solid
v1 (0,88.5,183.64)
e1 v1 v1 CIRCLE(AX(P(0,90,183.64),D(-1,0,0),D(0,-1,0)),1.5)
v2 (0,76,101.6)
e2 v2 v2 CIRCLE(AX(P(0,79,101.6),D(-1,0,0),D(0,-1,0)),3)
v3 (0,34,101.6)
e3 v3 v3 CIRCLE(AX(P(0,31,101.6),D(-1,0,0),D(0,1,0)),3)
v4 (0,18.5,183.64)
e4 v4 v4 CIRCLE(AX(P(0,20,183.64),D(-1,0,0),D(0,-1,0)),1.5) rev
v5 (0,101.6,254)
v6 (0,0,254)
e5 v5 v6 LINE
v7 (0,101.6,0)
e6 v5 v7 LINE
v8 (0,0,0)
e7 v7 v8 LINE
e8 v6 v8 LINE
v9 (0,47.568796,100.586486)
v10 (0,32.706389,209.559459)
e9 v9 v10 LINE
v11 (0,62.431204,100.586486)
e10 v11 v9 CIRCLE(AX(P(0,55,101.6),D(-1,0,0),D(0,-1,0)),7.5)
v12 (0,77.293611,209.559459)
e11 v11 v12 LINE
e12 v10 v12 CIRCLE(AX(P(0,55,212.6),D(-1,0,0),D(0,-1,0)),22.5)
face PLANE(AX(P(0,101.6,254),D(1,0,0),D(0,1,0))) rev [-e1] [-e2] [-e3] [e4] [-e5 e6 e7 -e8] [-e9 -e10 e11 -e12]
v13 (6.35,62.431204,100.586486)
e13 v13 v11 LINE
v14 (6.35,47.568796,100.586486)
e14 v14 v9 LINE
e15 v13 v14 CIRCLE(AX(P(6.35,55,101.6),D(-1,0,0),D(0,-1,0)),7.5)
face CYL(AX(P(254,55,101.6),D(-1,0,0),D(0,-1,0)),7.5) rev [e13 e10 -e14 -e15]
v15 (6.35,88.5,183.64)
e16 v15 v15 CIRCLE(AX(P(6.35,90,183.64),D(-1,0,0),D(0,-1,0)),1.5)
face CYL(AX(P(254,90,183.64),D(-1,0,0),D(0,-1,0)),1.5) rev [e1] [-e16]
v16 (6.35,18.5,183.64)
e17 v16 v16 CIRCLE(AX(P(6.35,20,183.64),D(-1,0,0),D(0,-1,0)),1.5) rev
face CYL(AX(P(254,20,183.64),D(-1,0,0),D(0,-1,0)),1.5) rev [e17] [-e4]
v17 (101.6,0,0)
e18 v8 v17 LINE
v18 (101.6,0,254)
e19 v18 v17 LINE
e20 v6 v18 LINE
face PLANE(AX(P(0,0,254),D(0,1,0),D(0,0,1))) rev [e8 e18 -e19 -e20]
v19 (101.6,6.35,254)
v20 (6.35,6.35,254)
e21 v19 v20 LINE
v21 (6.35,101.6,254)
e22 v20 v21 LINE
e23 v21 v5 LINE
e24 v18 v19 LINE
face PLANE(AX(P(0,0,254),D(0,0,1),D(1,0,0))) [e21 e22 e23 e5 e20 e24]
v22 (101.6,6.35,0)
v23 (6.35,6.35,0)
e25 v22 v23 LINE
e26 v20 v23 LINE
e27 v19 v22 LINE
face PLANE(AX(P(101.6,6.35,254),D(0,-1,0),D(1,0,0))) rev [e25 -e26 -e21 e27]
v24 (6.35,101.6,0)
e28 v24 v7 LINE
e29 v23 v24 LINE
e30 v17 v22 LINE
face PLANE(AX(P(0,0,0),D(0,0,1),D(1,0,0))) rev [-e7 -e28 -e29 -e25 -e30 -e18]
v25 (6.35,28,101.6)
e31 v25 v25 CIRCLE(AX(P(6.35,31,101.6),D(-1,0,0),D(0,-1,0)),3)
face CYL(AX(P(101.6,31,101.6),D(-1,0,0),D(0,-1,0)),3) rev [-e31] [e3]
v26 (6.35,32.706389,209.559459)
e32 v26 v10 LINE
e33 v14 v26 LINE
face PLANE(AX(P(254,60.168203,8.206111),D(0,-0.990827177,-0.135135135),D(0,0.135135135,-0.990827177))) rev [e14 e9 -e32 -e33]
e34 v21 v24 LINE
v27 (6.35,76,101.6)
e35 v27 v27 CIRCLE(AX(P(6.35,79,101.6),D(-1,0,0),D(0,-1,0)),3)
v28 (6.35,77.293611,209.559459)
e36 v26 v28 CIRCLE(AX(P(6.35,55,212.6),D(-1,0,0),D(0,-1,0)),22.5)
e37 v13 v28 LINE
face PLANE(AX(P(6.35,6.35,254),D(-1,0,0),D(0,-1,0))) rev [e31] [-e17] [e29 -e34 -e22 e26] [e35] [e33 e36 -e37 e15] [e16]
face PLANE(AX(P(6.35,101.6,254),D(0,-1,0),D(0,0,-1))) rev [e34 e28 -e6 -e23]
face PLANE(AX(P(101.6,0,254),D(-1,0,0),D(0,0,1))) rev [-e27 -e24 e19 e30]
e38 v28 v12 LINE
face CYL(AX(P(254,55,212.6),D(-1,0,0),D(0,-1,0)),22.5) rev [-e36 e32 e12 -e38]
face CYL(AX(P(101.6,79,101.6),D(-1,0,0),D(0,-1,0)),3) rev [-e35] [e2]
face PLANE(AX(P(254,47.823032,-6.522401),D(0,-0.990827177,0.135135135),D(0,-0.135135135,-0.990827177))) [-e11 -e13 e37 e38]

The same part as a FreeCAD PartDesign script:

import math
import FreeCAD as App
import Part
import Sketcher

V = App.Vector
Q = App.Units.Quantity


def add_polygon(sketch, points):
    """Adds a closed chain of lines whose ends are joined by coincident constraints."""
    first, n = sketch.GeometryCount, len(points)
    for a, b in zip(points, points[1:] + points[:1]):
        sketch.addGeometry(Part.LineSegment(App.Vector(*a, 0), App.Vector(*b, 0)), False)
    for i in range(n):
        sketch.addConstraint(Sketcher.Constraint("Coincident", first + i, 2, first + (i + 1) % n, 1))

doc = App.newDocument("Part")
body = doc.addObject("PartDesign::Body", "Body")

# Sketch on XY plane
sketch1 = doc.addObject("Sketcher::SketchObject", "Sketch")
body.addObject(sketch1)
sketch1.AttachmentSupport = (doc.XY_Plane, [""])
sketch1.MapMode = "FlatFace"
add_polygon(sketch1, [(0, 101.6), (0, 0), (101.6, 0), (101.6, 6.35), (6.35, 6.35), (6.35, 101.6)])  # lines 0-5
sketch1.addConstraint(Sketcher.Constraint("Vertical", 0))
sketch1.addConstraint(Sketcher.Constraint("Horizontal", 1))
sketch1.addConstraint(Sketcher.Constraint("Vertical", 2))
sketch1.addConstraint(Sketcher.Constraint("Horizontal", 3))
sketch1.addConstraint(Sketcher.Constraint("Vertical", 4))
sketch1.addConstraint(Sketcher.Constraint("Horizontal", 5))
sketch1.addConstraint(Sketcher.Constraint("Coincident", 0, 2, -1, 1))
sketch1.addConstraint(Sketcher.Constraint("Equal", 1, 0))
sketch1.addConstraint(Sketcher.Constraint("Equal", 5, 2))
sketch1.addConstraint(Sketcher.Constraint("DistanceX", 1, 1, 1, 2, Q("101.6 mm")))
sketch1.addConstraint(Sketcher.Constraint("DistanceX", 3, 2, 3, 1, Q("95.25 mm")))
pad1 = doc.addObject("PartDesign::Pad", "Pad")
body.addObject(pad1)
pad1.Profile = sketch1
pad1.Length = 254

# Sketch on YZ plane
sketch2 = doc.addObject("Sketcher::SketchObject", "Sketch001")
body.addObject(sketch2)
sketch2.AttachmentSupport = (doc.YZ_Plane, [""])
sketch2.MapMode = "FlatFace"
sketch2.addGeometry(Part.ArcOfCircle(Part.Circle(V(55, 101.6, 0), V(0, 0, 1), 7.5), math.radians(-172.233566), math.radians(-7.766434)), False)
sketch2.addGeometry(Part.LineSegment(V(47.568796, 100.586486, 0), V(32.706389, 209.559459, 0)), False)
sketch2.addGeometry(Part.ArcOfCircle(Part.Circle(V(55, 212.6, 0), V(0, 0, 1), 22.5), math.radians(-7.766434), math.radians(187.766434)), False)
sketch2.addGeometry(Part.LineSegment(V(77.293611, 209.559459, 0), V(62.431204, 100.586486, 0)), False)
sketch2.addGeometry(Part.Circle(V(90, 183.64, 0), V(0, 0, 1), 1.5), False)
sketch2.addGeometry(Part.Circle(V(20, 183.64, 0), V(0, 0, 1), 1.5), False)
sketch2.addConstraint(Sketcher.Constraint("Tangent", 0, 1, 1, 1))
sketch2.addConstraint(Sketcher.Constraint("Tangent", 1, 2, 2, 2))
sketch2.addConstraint(Sketcher.Constraint("Tangent", 2, 1, 3, 1))
sketch2.addConstraint(Sketcher.Constraint("Tangent", 3, 2, 0, 2))
sketch2.addConstraint(Sketcher.Constraint("Equal", 4, 5))
sketch2.addConstraint(Sketcher.Constraint("Horizontal", 4, 3, 5, 3))
sketch2.addConstraint(Sketcher.Constraint("Horizontal", 1, 2, 2, 1))
sketch2.addConstraint(Sketcher.Constraint("Diameter", 4, Q("3 mm")))
sketch2.addConstraint(Sketcher.Constraint("Radius", 0, Q("7.5 mm")))
sketch2.addConstraint(Sketcher.Constraint("Radius", 2, Q("22.5 mm")))
sketch2.addConstraint(Sketcher.Constraint("DistanceX", -1, 1, 0, 3, Q("55 mm")))
sketch2.addConstraint(Sketcher.Constraint("DistanceX", -1, 1, 4, 3, Q("90 mm")))
sketch2.addConstraint(Sketcher.Constraint("DistanceX", -1, 1, 5, 3, Q("20 mm")))
sketch2.addConstraint(Sketcher.Constraint("DistanceY", 0, 3, 2, 3, Q("111 mm")))
sketch2.addConstraint(Sketcher.Constraint("DistanceY", -1, 1, 0, 3, Q("101.6 mm")))
sketch2.addConstraint(Sketcher.Constraint("DistanceY", -1, 1, 4, 3, Q("183.64 mm")))
pocket1 = doc.addObject("PartDesign::Pocket", "Pocket")
body.addObject(pocket1)
pocket1.Profile = sketch2
pocket1.Length = 254
pocket1.Reversed = True

# Sketch on YZ plane
sketch3 = doc.addObject("Sketcher::SketchObject", "Sketch002")
body.addObject(sketch3)
sketch3.AttachmentSupport = (doc.YZ_Plane, [""])
sketch3.MapMode = "FlatFace"
sketch3.addGeometry(Part.Circle(V(79, 101.6, 0), V(0, 0, 1), 3), False)
sketch3.addGeometry(Part.Circle(V(31, 101.6, 0), V(0, 0, 1), 3), False)
sketch3.addConstraint(Sketcher.Constraint("Equal", 0, 1))
sketch3.addConstraint(Sketcher.Constraint("Horizontal", 0, 3, 1, 3))
sketch3.addConstraint(Sketcher.Constraint("Diameter", 0, Q("6 mm")))
sketch3.addConstraint(Sketcher.Constraint("DistanceX", -1, 1, 0, 3, Q("79 mm")))
sketch3.addConstraint(Sketcher.Constraint("DistanceX", -1, 1, 1, 3, Q("31 mm")))
sketch3.addConstraint(Sketcher.Constraint("DistanceY", -1, 1, 0, 3, Q("101.6 mm")))
pocket2 = doc.addObject("PartDesign::Pocket", "Pocket001")
body.addObject(pocket2)
pocket2.Profile = sketch3
pocket2.Type = "ThroughAll"
pocket2.Reversed = True

doc.recompute()
